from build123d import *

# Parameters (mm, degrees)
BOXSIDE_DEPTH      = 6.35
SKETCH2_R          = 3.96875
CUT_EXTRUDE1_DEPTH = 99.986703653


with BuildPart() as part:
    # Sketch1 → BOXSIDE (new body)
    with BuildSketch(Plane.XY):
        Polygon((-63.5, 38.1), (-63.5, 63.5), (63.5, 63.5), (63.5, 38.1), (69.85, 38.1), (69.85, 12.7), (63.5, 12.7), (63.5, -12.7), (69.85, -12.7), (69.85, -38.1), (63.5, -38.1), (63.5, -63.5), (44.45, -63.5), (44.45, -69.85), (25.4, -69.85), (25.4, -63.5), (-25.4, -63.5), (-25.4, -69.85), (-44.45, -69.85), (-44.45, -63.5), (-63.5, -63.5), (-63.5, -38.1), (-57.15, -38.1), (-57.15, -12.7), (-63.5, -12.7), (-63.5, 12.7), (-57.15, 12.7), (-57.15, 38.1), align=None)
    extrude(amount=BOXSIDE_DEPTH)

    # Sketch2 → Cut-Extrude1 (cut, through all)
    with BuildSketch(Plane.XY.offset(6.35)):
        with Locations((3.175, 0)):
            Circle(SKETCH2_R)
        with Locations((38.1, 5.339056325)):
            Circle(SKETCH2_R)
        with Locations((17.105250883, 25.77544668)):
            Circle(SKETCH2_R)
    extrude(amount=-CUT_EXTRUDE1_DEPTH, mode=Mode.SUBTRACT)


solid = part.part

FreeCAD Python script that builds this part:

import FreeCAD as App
import Part
import Sketcher

V = App.Vector
Q = App.Units.Quantity

doc = App.newDocument("Part")
body = doc.addObject("PartDesign::Body", "Body")

# Sketch on XY plane
sketch1 = body.newObject("Sketcher::SketchObject", "Sketch")
sketch1.AttachmentSupport = (doc.getObject("XY_Plane"), [""])
sketch1.MapMode = "FlatFace"
sketch1.addGeometry(Part.LineSegment(V(-64, 64, 0), V(-64, 38, 0)), False)
sketch1.addGeometry(Part.LineSegment(V(-64, 38, 0), V(-57, 38, 0)), False)
sketch1.addGeometry(Part.LineSegment(V(-57, 38, 0), V(-57, 13, 0)), False)
sketch1.addGeometry(Part.LineSegment(V(-57, 13, 0), V(-64, 13, 0)), False)
sketch1.addGeometry(Part.LineSegment(V(-64, 13, 0), V(-64, -13, 0)), False)
sketch1.addGeometry(Part.LineSegment(V(-64, -13, 0), V(-57, -13, 0)), False)
sketch1.addGeometry(Part.LineSegment(V(-57, -13, 0), V(-57, -38, 0)), False)
sketch1.addGeometry(Part.LineSegment(V(-57, -38, 0), V(-64, -38, 0)), False)
sketch1.addGeometry(Part.LineSegment(V(-64, -38, 0), V(-64, -64, 0)), False)
sketch1.addGeometry(Part.LineSegment(V(-64, -64, 0), V(-44, -64, 0)), False)
sketch1.addGeometry(Part.LineSegment(V(-44, -64, 0), V(-44, -70, 0)), False)
sketch1.addGeometry(Part.LineSegment(V(-44, -70, 0), V(-25, -70, 0)), False)
sketch1.addGeometry(Part.LineSegment(V(-25, -70, 0), V(-25, -64, 0)), False)
sketch1.addGeometry(Part.LineSegment(V(-25, -64, 0), V(25, -64, 0)), False)
sketch1.addGeometry(Part.LineSegment(V(25, -64, 0), V(25, -70, 0)), False)
sketch1.addGeometry(Part.LineSegment(V(25, -70, 0), V(44, -70, 0)), False)
sketch1.addGeometry(Part.LineSegment(V(44, -70, 0), V(44, -64, 0)), False)
sketch1.addGeometry(Part.LineSegment(V(44, -64, 0), V(64, -64, 0)), False)
sketch1.addGeometry(Part.LineSegment(V(64, -64, 0), V(64, -38, 0)), False)
sketch1.addGeometry(Part.LineSegment(V(64, -38, 0), V(70, -38, 0)), False)
sketch1.addGeometry(Part.LineSegment(V(70, -38, 0), V(70, -13, 0)), False)
sketch1.addGeometry(Part.LineSegment(V(70, -13, 0), V(64, -13, 0)), False)
sketch1.addGeometry(Part.LineSegment(V(64, -13, 0), V(64, 13, 0)), False)
sketch1.addGeometry(Part.LineSegment(V(64, 13, 0), V(70, 13, 0)), False)
sketch1.addGeometry(Part.LineSegment(V(70, 13, 0), V(70, 38, 0)), False)
sketch1.addGeometry(Part.LineSegment(V(70, 38, 0), V(64, 38, 0)), False)
sketch1.addGeometry(Part.LineSegment(V(64, 38, 0), V(64, 64, 0)), False)
sketch1.addGeometry(Part.LineSegment(V(64, 64, 0), V(-64, 64, 0)), False)
sketch1.addConstraint(Sketcher.Constraint("Coincident", 0, 2, 1, 1))
sketch1.addConstraint(Sketcher.Constraint("Coincident", 1, 2, 2, 1))
sketch1.addConstraint(Sketcher.Constraint("Coincident", 2, 2, 3, 1))
sketch1.addConstraint(Sketcher.Constraint("Coincident", 3, 2, 4, 1))
sketch1.addConstraint(Sketcher.Constraint("Coincident", 4, 2, 5, 1))
sketch1.addConstraint(Sketcher.Constraint("Coincident", 5, 2, 6, 1))
sketch1.addConstraint(Sketcher.Constraint("Coincident", 6, 2, 7, 1))
sketch1.addConstraint(Sketcher.Constraint("Coincident", 7, 2, 8, 1))
sketch1.addConstraint(Sketcher.Constraint("Coincident", 8, 2, 9, 1))
sketch1.addConstraint(Sketcher.Constraint("Coincident", 9, 2, 10, 1))
sketch1.addConstraint(Sketcher.Constraint("Coincident", 10, 2, 11, 1))
sketch1.addConstraint(Sketcher.Constraint("Coincident", 11, 2, 12, 1))
sketch1.addConstraint(Sketcher.Constraint("Coincident", 12, 2, 13, 1))
sketch1.addConstraint(Sketcher.Constraint("Coincident", 13, 2, 14, 1))
sketch1.addConstraint(Sketcher.Constraint("Coincident", 14, 2, 15, 1))
sketch1.addConstraint(Sketcher.Constraint("Coincident", 15, 2, 16, 1))
sketch1.addConstraint(Sketcher.Constraint("Coincident", 16, 2, 17, 1))
sketch1.addConstraint(Sketcher.Constraint("Coincident", 17, 2, 18, 1))
sketch1.addConstraint(Sketcher.Constraint("Coincident", 18, 2, 19, 1))
sketch1.addConstraint(Sketcher.Constraint("Coincident", 19, 2, 20, 1))
sketch1.addConstraint(Sketcher.Constraint("Coincident", 20, 2, 21, 1))
sketch1.addConstraint(Sketcher.Constraint("Coincident", 21, 2, 22, 1))
sketch1.addConstraint(Sketcher.Constraint("Coincident", 22, 2, 23, 1))
sketch1.addConstraint(Sketcher.Constraint("Coincident", 23, 2, 24, 1))
sketch1.addConstraint(Sketcher.Constraint("Coincident", 24, 2, 25, 1))
sketch1.addConstraint(Sketcher.Constraint("Coincident", 25, 2, 26, 1))
sketch1.addConstraint(Sketcher.Constraint("Coincident", 26, 2, 27, 1))
sketch1.addConstraint(Sketcher.Constraint("Coincident", 27, 2, 0, 1))
sketch1.addConstraint(Sketcher.Constraint("Vertical", 0))
sketch1.addConstraint(Sketcher.Constraint("Horizontal", 1))
sketch1.addConstraint(Sketcher.Constraint("Vertical", 2))
sketch1.addConstraint(Sketcher.Constraint("Horizontal", 3))
sketch1.addConstraint(Sketcher.Constraint("Vertical", 4))
sketch1.addConstraint(Sketcher.Constraint("Horizontal", 5))
sketch1.addConstraint(Sketcher.Constraint("Vertical", 6))
sketch1.addConstraint(Sketcher.Constraint("Horizontal", 7))
sketch1.addConstraint(Sketcher.Constraint("Vertical", 8))
sketch1.addConstraint(Sketcher.Constraint("Horizontal", 9))
sketch1.addConstraint(Sketcher.Constraint("Vertical", 10))
sketch1.addConstraint(Sketcher.Constraint("Horizontal", 11))
sketch1.addConstraint(Sketcher.Constraint("Vertical", 12))
sketch1.addConstraint(Sketcher.Constraint("Horizontal", 13))
sketch1.addConstraint(Sketcher.Constraint("Vertical", 14))
sketch1.addConstraint(Sketcher.Constraint("Horizontal", 15))
sketch1.addConstraint(Sketcher.Constraint("Vertical", 16))
sketch1.addConstraint(Sketcher.Constraint("Horizontal", 17))
sketch1.addConstraint(Sketcher.Constraint("Vertical", 18))
sketch1.addConstraint(Sketcher.Constraint("Horizontal", 19))
sketch1.addConstraint(Sketcher.Constraint("Vertical", 20))
sketch1.addConstraint(Sketcher.Constraint("Horizontal", 21))
sketch1.addConstraint(Sketcher.Constraint("Vertical", 22))
sketch1.addConstraint(Sketcher.Constraint("Horizontal", 23))
sketch1.addConstraint(Sketcher.Constraint("Vertical", 24))
sketch1.addConstraint(Sketcher.Constraint("Horizontal", 25))
sketch1.addConstraint(Sketcher.Constraint("Vertical", 26))
sketch1.addConstraint(Sketcher.Constraint("Horizontal", 27))
sketch1.addConstraint(Sketcher.Constraint("Symmetric", 0, 2, 18, 2, -1, 1))
sketch1.addConstraint(Sketcher.Constraint("Symmetric", 3, 2, 21, 2, -1, 1))
sketch1.addConstraint(Sketcher.Constraint("Symmetric", 7, 2, 25, 2, -1, 1))
sketch1.addConstraint(Sketcher.Constraint("Symmetric", 11, 2, 14, 2, -2))
sketch1.addConstraint(Sketcher.Constraint("Symmetric", 9, 2, 16, 2, -2))
sketch1.addConstraint(Sketcher.Constraint("Symmetric", 7, 2, 18, 2, -2))
sketch1.addConstraint(Sketcher.Constraint("Symmetric", 2, 2, 5, 2, -1))
sketch1.addConstraint(Sketcher.Constraint("Symmetric", 20, 2, 23, 2, -1))
sketch1.addConstraint(Sketcher.Constraint("Horizontal", 9, 2, 12, 2))
sketch1.addConstraint(Sketcher.Constraint("Vertical", 0, 2, 3, 2))
sketch1.addConstraint(Sketcher.Constraint("Equal", 9, 11))
sketch1.addConstraint(Sketcher.Constraint("Equal", 7, 19))
sketch1.addConstraint(Sketcher.Constraint("Equal", 0, 2))
sketch1.addConstraint(Sketcher.Constraint("Equal", 2, 4))
sketch1.addConstraint(Sketcher.Constraint("Equal", 6, 8))
sketch1.addConstraint(Sketcher.Constraint("Equal", 25, 10))
sketch1.addConstraint(Sketcher.Constraint("DistanceX", 13, 1, 13, 2, Q("2 in")))
sketch1.addConstraint(Sketcher.Constraint("DistanceX", 27, 2, 27, 1, Q("5 in")))
sketch1.addConstraint(Sketcher.Constraint("DistanceY", 0, 2, 0, 1, Q("1 in")))
sketch1.addConstraint(Sketcher.Constraint("DistanceX", 16, 2, 19, 2, Q("1 in")))
pad1 = body.newObject("PartDesign::Pad", "Pad")
pad1.Profile = sketch1
pad1.Length = Q("0.25 in")

# Sketch on XY plane
sketch2 = body.newObject("Sketcher::SketchObject", "Sketch001")
sketch2.AttachmentSupport = (doc.getObject("XY_Plane"), [""])
sketch2.MapMode = "FlatFace"
sketch2.AttachmentOffset = App.Placement(V(0, 0, 0.25 * 25.4), App.Rotation())
sketch2.addGeometry(Part.Circle(V(3.2, 0, 0), V(0, 0, 1), 4), False)
sketch2.addGeometry(Part.Circle(V(38.1, 5.3, 0), V(0, 0, 1), 4), False)
sketch2.addGeometry(Part.Circle(V(17.1, 25.8, 0), V(0, 0, 1), 4), False)
sketch2.addConstraint(Sketcher.Constraint("Equal", 0, 1))
sketch2.addConstraint(Sketcher.Constraint("Equal", 1, 2))
sketch2.addConstraint(Sketcher.Constraint("PointOnObject", 0, 3, -1))
sketch2.addConstraint(Sketcher.Constraint("Diameter", 0, Q("0.3125 in")))
sketch2.addConstraint(Sketcher.Constraint("DistanceX", -1, 1, 1, 3, Q("1.5 in")))
sketch2.addConstraint(Sketcher.Constraint("DistanceX", -1, 1, 0, 3, Q("0.125 in")))
sketch2.addConstraint(Sketcher.Constraint("DistanceX", -1, 1, 2, 3, 17.105251))
sketch2.addConstraint(Sketcher.Constraint("DistanceY", 1, 3, 2, 3, 20.43639))
sketch2.addConstraint(Sketcher.Constraint("DistanceY", -1, 1, 1, 3, 5.339056))
pocket1 = body.newObject("PartDesign::Pocket", "Pocket")
pocket1.Profile = sketch2
pocket1.Type = "ThroughAll"

doc.recompute()
